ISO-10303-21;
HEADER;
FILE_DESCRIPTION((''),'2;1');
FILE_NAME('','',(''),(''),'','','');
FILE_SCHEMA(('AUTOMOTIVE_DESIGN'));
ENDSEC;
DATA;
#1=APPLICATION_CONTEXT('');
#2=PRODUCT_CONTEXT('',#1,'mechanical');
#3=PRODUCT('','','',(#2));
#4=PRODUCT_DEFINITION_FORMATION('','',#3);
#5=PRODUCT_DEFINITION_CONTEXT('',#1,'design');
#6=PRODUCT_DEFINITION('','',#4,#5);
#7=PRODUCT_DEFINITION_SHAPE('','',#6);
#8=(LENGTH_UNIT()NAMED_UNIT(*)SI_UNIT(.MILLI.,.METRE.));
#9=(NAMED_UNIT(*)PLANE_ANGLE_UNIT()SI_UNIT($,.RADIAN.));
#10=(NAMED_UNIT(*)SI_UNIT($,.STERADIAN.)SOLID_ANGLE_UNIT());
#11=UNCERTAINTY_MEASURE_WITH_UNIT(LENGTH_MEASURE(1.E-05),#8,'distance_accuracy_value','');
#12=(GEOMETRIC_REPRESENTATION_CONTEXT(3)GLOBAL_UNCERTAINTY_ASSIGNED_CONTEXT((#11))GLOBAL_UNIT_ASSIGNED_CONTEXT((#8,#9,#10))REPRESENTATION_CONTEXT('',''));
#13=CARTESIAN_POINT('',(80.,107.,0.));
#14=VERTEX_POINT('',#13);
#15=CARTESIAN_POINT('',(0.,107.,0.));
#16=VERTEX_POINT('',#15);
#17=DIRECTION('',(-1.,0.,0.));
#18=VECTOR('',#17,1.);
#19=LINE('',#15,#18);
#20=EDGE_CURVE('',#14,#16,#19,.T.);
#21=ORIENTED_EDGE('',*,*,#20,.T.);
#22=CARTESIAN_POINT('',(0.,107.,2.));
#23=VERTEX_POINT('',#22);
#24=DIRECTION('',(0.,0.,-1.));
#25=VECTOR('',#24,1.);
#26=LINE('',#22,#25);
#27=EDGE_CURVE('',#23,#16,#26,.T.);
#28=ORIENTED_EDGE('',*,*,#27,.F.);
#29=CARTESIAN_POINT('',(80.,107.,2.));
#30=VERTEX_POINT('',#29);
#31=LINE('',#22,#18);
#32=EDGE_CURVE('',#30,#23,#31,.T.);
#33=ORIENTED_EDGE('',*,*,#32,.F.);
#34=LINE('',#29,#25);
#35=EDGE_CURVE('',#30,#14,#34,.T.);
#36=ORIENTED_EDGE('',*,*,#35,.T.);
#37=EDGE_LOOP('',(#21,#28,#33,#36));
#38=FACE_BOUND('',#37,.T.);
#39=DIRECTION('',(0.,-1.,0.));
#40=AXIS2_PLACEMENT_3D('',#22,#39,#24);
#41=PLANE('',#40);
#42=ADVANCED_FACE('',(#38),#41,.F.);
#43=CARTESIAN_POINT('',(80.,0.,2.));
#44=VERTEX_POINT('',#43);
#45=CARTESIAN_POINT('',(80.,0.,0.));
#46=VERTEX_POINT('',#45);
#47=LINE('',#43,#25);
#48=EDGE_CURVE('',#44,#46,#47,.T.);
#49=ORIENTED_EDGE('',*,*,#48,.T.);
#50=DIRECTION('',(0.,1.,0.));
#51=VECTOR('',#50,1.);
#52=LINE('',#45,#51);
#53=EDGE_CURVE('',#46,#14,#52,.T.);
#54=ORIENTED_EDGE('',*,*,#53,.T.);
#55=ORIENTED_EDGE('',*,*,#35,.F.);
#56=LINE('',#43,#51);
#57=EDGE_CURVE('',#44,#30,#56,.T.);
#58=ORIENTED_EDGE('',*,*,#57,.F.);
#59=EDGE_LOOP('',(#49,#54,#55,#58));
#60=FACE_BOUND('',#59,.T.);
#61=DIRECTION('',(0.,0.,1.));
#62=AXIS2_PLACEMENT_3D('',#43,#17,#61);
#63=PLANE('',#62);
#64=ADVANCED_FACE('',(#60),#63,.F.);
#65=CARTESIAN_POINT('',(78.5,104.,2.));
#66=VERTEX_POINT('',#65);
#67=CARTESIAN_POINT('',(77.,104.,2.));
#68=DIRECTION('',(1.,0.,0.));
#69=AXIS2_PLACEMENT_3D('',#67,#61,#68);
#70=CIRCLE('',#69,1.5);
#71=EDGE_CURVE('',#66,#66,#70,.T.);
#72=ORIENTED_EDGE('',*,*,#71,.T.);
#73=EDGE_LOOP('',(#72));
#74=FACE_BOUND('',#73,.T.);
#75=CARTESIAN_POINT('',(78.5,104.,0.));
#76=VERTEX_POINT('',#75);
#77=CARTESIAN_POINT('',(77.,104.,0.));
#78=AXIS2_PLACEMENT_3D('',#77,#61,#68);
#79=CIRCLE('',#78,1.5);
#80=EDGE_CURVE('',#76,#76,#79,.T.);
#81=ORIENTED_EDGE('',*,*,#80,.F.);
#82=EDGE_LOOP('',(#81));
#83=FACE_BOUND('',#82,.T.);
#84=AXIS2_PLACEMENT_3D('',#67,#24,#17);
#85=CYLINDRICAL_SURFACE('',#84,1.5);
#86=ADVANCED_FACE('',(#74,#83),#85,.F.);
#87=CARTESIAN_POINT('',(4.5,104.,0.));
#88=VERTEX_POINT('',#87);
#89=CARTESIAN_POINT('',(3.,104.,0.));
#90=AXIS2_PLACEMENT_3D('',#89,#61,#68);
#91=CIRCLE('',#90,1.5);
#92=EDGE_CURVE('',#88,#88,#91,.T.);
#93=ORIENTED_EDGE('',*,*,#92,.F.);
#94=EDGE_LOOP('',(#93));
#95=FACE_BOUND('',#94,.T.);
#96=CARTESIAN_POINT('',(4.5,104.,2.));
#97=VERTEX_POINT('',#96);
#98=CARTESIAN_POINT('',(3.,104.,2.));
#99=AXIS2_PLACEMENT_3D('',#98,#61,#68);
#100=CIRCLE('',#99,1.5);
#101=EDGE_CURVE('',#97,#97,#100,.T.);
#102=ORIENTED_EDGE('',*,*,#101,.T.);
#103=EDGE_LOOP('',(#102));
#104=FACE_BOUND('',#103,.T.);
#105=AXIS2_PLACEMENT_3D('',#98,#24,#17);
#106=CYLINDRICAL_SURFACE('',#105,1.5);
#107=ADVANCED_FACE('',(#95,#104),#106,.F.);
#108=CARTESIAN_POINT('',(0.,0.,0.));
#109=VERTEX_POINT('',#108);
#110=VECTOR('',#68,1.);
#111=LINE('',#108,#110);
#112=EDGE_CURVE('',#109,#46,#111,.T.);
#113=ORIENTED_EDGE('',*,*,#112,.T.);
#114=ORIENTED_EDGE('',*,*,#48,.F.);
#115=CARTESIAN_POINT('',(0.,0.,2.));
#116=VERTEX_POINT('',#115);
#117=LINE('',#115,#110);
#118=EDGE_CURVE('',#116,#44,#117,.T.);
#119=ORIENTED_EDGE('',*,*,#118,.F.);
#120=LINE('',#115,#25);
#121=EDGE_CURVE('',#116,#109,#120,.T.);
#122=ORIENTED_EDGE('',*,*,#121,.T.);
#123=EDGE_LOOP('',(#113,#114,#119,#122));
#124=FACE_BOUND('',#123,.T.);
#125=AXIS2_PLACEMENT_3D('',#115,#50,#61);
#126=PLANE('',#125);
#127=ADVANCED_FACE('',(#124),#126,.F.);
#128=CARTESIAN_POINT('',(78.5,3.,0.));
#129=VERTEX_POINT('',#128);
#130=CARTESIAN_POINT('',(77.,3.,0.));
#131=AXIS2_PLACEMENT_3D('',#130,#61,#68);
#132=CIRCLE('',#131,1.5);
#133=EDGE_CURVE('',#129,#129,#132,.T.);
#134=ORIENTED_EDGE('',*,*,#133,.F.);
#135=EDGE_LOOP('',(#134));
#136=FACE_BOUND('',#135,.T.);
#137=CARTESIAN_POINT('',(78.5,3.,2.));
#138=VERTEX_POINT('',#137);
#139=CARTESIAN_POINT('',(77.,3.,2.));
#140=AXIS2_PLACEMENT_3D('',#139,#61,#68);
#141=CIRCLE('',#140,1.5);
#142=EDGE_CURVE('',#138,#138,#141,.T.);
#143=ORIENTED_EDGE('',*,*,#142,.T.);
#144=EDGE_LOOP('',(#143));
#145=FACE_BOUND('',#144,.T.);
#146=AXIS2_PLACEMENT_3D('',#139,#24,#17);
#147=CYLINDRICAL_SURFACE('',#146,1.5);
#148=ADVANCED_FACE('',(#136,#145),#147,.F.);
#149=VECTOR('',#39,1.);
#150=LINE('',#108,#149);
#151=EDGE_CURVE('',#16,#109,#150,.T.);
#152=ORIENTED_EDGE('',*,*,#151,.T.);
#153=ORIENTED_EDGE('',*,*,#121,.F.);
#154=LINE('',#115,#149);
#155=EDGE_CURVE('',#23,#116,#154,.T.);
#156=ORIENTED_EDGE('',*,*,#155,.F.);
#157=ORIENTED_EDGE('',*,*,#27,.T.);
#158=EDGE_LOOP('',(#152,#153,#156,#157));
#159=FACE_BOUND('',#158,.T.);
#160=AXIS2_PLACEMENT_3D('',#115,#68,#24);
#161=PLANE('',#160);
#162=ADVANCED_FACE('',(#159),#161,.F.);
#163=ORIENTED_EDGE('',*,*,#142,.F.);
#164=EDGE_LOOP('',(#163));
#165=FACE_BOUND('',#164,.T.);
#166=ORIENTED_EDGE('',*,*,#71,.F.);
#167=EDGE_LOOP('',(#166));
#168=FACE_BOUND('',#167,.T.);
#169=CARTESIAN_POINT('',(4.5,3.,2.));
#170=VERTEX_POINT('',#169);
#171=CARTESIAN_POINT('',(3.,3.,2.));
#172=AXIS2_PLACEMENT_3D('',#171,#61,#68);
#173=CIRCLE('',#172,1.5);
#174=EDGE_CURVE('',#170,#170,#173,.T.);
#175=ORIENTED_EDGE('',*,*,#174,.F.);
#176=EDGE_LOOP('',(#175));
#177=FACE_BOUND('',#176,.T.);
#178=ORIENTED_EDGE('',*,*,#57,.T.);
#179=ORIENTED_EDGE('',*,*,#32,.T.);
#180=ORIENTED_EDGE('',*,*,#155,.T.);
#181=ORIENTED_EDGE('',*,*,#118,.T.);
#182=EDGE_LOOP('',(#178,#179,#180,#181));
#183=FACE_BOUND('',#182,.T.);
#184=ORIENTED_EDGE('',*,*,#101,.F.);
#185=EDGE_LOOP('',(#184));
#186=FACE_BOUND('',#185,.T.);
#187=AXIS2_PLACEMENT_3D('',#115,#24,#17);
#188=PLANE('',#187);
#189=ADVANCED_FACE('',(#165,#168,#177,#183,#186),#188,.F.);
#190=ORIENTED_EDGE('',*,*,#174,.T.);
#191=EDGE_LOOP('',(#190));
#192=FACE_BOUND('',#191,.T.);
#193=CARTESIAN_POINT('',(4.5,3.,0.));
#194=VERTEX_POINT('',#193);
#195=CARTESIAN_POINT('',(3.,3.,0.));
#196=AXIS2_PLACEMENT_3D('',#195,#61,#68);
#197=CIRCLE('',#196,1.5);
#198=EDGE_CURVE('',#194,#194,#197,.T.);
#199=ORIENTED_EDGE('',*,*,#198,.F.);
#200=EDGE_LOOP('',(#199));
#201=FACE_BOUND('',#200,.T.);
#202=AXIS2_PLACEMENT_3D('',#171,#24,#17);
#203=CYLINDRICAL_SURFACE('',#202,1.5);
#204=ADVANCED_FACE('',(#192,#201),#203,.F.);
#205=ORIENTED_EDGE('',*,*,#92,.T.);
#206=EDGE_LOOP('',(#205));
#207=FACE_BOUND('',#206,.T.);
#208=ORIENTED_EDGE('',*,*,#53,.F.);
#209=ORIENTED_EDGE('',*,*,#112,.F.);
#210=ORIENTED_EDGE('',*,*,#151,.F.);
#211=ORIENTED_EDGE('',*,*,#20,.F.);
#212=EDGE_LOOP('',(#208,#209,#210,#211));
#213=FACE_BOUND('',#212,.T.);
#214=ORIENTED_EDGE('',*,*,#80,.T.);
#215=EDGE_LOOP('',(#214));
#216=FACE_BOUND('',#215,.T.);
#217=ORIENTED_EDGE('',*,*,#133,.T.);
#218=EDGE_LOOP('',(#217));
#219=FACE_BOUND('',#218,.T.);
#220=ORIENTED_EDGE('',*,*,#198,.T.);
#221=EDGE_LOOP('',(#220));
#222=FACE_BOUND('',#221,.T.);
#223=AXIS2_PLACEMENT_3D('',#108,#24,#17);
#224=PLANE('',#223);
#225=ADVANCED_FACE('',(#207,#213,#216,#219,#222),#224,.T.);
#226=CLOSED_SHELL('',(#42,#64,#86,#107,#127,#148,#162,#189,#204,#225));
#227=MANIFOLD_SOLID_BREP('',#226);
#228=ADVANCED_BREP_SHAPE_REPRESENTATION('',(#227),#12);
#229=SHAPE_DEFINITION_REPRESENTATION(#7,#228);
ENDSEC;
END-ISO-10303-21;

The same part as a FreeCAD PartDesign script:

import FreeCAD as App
import Part
import Sketcher

V = App.Vector
Q = App.Units.Quantity

doc = App.newDocument("Part")
body = doc.addObject("PartDesign::Body", "Body")

# Sketch on XY plane
sketch1 = doc.addObject("Sketcher::SketchObject", "Sketch")
body.addObject(sketch1)
sketch1.AttachmentSupport = (doc.XY_Plane, [""])
sketch1.MapMode = "FlatFace"
sketch1.addGeometry(Part.LineSegment(V(0, 107, 0), V(0, 0, 0)), False)
sketch1.addGeometry(Part.LineSegment(V(0, 0, 0), V(80, 0, 0)), False)
sketch1.addGeometry(Part.LineSegment(V(80, 0, 0), V(80, 107, 0)), False)
sketch1.addGeometry(Part.LineSegment(V(80, 107, 0), V(0, 107, 0)), False)
sketch1.addGeometry(Part.Circle(V(3, 3, 0), V(0, 0, 1), 1.5), False)
sketch1.addGeometry(Part.Circle(V(77, 3, 0), V(0, 0, 1), 1.5), False)
sketch1.addGeometry(Part.Circle(V(3, 104, 0), V(0, 0, 1), 1.5), False)
sketch1.addGeometry(Part.Circle(V(77, 104, 0), V(0, 0, 1), 1.5), False)
sketch1.addConstraint(Sketcher.Constraint("Coincident", 0, 2, 1, 1))
sketch1.addConstraint(Sketcher.Constraint("Coincident", 1, 2, 2, 1))
sketch1.addConstraint(Sketcher.Constraint("Coincident", 2, 2, 3, 1))
sketch1.addConstraint(Sketcher.Constraint("Coincident", 3, 2, 0, 1))
sketch1.addConstraint(Sketcher.Constraint("Vertical", 0))
sketch1.addConstraint(Sketcher.Constraint("Horizontal", 1))
sketch1.addConstraint(Sketcher.Constraint("Vertical", 2))
sketch1.addConstraint(Sketcher.Constraint("Horizontal", 3))
sketch1.addConstraint(Sketcher.Constraint("Coincident", 0, 2, -1, 1))
sketch1.addConstraint(Sketcher.Constraint("Equal", 4, 5))
sketch1.addConstraint(Sketcher.Constraint("Equal", 5, 6))
sketch1.addConstraint(Sketcher.Constraint("Equal", 6, 7))
sketch1.addConstraint(Sketcher.Constraint("Horizontal", 4, 3, 5, 3))
sketch1.addConstraint(Sketcher.Constraint("Horizontal", 6, 3, 7, 3))
sketch1.addConstraint(Sketcher.Constraint("Vertical", 4, 3, 6, 3))
sketch1.addConstraint(Sketcher.Constraint("Vertical", 5, 3, 7, 3))
sketch1.addConstraint(Sketcher.Constraint("Diameter", 4, Q("3 mm")))
sketch1.addConstraint(Sketcher.Constraint("DistanceX", 1, 1, 1, 2, Q("80 mm")))
sketch1.addConstraint(Sketcher.Constraint("DistanceY", 0, 2, 0, 1, Q("107 mm")))
sketch1.addConstraint(Sketcher.Constraint("DistanceX", -1, 1, 4, 3, Q("3 mm")))
sketch1.addConstraint(Sketcher.Constraint("DistanceY", -1, 1, 4, 3, Q("3 mm")))
sketch1.addConstraint(Sketcher.Constraint("DistanceX", -1, 1, 5, 3, Q("77 mm")))
sketch1.addConstraint(Sketcher.Constraint("DistanceY", -1, 1, 6, 3, Q("104 mm")))
pad1 = doc.addObject("PartDesign::Pad", "Pad")
body.addObject(pad1)
pad1.Profile = sketch1
pad1.Length = 2

doc.recompute()
